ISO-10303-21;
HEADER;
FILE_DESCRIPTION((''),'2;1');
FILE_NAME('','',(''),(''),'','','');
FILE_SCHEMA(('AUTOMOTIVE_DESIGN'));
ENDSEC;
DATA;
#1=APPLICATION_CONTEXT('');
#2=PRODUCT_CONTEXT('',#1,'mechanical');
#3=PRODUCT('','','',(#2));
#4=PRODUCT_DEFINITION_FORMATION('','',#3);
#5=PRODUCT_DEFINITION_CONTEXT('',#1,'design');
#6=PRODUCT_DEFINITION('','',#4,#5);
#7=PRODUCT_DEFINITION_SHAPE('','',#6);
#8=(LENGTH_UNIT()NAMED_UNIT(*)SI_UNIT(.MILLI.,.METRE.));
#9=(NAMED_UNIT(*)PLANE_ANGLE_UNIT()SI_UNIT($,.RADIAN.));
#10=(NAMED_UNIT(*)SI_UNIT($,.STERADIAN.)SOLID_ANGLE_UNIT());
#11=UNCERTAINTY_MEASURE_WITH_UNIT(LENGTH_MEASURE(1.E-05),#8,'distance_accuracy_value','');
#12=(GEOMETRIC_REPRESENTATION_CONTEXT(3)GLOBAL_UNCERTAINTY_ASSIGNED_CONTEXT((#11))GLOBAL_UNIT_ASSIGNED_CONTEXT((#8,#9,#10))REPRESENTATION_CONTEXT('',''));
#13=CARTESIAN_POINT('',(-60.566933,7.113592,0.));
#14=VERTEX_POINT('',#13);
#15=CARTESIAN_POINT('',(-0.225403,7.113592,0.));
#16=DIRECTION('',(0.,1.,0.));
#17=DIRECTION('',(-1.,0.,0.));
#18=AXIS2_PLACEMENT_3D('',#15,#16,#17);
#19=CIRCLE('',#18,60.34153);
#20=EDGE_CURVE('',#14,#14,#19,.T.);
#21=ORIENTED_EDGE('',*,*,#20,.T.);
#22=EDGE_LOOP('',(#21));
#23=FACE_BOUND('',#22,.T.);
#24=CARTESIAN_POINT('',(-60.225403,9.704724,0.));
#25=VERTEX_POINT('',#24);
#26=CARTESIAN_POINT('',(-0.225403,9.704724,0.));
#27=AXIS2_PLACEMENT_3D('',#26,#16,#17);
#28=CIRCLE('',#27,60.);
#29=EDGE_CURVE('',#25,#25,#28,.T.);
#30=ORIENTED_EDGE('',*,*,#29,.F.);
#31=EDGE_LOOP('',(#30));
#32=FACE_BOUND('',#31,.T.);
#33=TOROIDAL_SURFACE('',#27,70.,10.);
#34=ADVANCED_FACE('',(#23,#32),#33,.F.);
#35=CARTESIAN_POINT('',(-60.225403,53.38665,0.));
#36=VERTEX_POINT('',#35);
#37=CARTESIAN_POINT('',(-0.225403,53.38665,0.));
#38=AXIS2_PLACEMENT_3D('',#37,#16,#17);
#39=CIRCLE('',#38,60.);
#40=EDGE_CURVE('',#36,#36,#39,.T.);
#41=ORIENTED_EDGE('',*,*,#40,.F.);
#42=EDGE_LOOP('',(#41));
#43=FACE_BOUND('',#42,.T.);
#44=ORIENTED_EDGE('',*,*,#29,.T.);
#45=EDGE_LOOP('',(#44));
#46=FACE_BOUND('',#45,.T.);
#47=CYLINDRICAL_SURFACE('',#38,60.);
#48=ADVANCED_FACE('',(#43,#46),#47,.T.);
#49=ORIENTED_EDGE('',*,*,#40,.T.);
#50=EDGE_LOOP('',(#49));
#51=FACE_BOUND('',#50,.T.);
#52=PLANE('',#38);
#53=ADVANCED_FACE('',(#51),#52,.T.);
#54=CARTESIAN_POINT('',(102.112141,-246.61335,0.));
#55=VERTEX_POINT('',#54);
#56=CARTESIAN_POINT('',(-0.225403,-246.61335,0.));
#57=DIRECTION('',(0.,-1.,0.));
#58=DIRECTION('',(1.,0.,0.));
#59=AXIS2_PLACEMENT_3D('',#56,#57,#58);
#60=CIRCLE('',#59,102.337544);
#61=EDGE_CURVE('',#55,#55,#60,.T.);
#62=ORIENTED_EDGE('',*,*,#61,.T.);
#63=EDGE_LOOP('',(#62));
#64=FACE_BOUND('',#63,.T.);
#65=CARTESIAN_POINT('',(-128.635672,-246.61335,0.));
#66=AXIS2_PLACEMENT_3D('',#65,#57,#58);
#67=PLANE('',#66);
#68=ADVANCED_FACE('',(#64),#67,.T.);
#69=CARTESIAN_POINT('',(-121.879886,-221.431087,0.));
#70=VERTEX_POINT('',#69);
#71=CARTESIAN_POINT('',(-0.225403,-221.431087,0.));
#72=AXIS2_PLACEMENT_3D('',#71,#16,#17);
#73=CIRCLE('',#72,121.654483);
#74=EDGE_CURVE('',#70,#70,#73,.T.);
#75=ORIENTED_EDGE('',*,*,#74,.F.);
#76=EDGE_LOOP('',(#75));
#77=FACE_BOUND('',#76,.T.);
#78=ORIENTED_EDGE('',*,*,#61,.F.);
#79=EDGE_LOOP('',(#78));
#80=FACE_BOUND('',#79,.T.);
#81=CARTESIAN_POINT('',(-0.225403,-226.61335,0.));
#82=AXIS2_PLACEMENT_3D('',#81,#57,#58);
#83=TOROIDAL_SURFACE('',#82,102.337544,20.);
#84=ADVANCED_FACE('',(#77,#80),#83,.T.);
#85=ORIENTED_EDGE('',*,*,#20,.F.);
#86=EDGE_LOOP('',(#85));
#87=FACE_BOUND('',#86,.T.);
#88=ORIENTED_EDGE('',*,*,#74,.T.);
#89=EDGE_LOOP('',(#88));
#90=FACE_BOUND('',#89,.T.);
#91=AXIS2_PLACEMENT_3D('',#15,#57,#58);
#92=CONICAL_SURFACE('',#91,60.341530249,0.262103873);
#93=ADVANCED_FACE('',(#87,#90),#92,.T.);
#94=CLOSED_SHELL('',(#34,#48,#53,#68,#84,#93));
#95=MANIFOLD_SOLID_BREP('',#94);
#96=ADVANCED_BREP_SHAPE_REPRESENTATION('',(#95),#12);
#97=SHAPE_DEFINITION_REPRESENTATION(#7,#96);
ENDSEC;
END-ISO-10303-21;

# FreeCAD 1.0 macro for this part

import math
import FreeCAD as App
import Part
import Sketcher


def edges_at(feature, points):
    """Names of the edges that pass closest to the given points."""
    edges = feature.Shape.Edges
    near = lambda p: min(range(len(edges)), key=lambda i: edges[i].distToShape(Part.Vertex(*p))[0])
    return sorted({f"Edge{near(p) + 1}" for p in points})

doc = App.newDocument("Part")
body = doc.addObject("PartDesign::Body", "Body")

# Sketch on XY plane
sketch1 = doc.addObject("Sketcher::SketchObject", "Sketch")
body.addObject(sketch1)
sketch1.AttachmentSupport = (doc.XY_Plane, [""])
sketch1.MapMode = "FlatFace"
sketch1.addGeometry([
    Part.LineSegment(App.Vector(-0.2, 53.4, 0), App.Vector(-60.2, 53.4, 0)),  # 0
    Part.LineSegment(App.Vector(-60.2, 53.4, 0), App.Vector(-60.2, 9.7, 0)),  # 1
    Part.ArcOfCircle(Part.Circle(App.Vector(-70.2, 9.7, 0), App.Vector(0, 0, 1), 10), math.radians(-15.02), math.radians(0)),  # 2
    Part.LineSegment(App.Vector(-60.6, 7.1, 0), App.Vector(-128.6, -246.6, 0)),  # 3
    Part.LineSegment(App.Vector(-128.6, -246.6, 0), App.Vector(-0.2, -246.6, 0)),  # 4
    Part.LineSegment(App.Vector(-0.2, -246.6, 0), App.Vector(-0.2, 53.4, 0)),  # 5
], False)
sketch1.addGeometry(Part.LineSegment(App.Vector(-0.2, 53.4, 0), App.Vector(-0.2, -246.6, 0)), True)  # axis
sketch1.addConstraint([
    Sketcher.Constraint("Coincident", 0, 2, 1, 1),
    Sketcher.Constraint("Tangent", 1, 2, 2, 2),
    Sketcher.Constraint("Tangent", 2, 1, 3, 1),
    Sketcher.Constraint("Coincident", 3, 2, 4, 1),
    Sketcher.Constraint("Coincident", 4, 2, 5, 1),
    Sketcher.Constraint("Coincident", 5, 2, 0, 1),
    Sketcher.Constraint("Horizontal", 0),
    Sketcher.Constraint("Vertical", 1),
    Sketcher.Constraint("Horizontal", 4),
    Sketcher.Constraint("Vertical", 5),
    Sketcher.Constraint("Vertical", 6),
    Sketcher.Constraint("Coincident", 6, 1, 5, 2),
    Sketcher.Constraint("Horizontal", 3, 2, 6, 2),
    Sketcher.Constraint("Radius", 2, 10.0),
    Sketcher.Constraint("DistanceX", 0, 2, 0, 1, 60.0),
    Sketcher.Constraint("DistanceY", 5, 1, 5, 2, 300.0),
    Sketcher.Constraint("DistanceX", 4, 1, 4, 2, 128.410269),
    Sketcher.Constraint("DistanceY", 1, 2, 1, 1, 43.681926),
    Sketcher.Constraint("DistanceY", -1, 1, 0, 2, 53.38665),
    Sketcher.Constraint("DistanceX", 3, 2, -1, 1, 128.635672),
])
revolution = doc.addObject("PartDesign::Revolution", "Revolution")
body.addObject(revolution)
revolution.Profile = sketch1
revolution.ReferenceAxis = (sketch1, ["Axis0"])
revolution.Angle = 360
doc.recompute()

fillet = doc.addObject("PartDesign::Fillet", "Fillet")
body.addObject(fillet)
fillet.Base = (revolution, edges_at(revolution, [(128.185, -246.613, 0)]))
fillet.Radius = 20

doc.recompute()
